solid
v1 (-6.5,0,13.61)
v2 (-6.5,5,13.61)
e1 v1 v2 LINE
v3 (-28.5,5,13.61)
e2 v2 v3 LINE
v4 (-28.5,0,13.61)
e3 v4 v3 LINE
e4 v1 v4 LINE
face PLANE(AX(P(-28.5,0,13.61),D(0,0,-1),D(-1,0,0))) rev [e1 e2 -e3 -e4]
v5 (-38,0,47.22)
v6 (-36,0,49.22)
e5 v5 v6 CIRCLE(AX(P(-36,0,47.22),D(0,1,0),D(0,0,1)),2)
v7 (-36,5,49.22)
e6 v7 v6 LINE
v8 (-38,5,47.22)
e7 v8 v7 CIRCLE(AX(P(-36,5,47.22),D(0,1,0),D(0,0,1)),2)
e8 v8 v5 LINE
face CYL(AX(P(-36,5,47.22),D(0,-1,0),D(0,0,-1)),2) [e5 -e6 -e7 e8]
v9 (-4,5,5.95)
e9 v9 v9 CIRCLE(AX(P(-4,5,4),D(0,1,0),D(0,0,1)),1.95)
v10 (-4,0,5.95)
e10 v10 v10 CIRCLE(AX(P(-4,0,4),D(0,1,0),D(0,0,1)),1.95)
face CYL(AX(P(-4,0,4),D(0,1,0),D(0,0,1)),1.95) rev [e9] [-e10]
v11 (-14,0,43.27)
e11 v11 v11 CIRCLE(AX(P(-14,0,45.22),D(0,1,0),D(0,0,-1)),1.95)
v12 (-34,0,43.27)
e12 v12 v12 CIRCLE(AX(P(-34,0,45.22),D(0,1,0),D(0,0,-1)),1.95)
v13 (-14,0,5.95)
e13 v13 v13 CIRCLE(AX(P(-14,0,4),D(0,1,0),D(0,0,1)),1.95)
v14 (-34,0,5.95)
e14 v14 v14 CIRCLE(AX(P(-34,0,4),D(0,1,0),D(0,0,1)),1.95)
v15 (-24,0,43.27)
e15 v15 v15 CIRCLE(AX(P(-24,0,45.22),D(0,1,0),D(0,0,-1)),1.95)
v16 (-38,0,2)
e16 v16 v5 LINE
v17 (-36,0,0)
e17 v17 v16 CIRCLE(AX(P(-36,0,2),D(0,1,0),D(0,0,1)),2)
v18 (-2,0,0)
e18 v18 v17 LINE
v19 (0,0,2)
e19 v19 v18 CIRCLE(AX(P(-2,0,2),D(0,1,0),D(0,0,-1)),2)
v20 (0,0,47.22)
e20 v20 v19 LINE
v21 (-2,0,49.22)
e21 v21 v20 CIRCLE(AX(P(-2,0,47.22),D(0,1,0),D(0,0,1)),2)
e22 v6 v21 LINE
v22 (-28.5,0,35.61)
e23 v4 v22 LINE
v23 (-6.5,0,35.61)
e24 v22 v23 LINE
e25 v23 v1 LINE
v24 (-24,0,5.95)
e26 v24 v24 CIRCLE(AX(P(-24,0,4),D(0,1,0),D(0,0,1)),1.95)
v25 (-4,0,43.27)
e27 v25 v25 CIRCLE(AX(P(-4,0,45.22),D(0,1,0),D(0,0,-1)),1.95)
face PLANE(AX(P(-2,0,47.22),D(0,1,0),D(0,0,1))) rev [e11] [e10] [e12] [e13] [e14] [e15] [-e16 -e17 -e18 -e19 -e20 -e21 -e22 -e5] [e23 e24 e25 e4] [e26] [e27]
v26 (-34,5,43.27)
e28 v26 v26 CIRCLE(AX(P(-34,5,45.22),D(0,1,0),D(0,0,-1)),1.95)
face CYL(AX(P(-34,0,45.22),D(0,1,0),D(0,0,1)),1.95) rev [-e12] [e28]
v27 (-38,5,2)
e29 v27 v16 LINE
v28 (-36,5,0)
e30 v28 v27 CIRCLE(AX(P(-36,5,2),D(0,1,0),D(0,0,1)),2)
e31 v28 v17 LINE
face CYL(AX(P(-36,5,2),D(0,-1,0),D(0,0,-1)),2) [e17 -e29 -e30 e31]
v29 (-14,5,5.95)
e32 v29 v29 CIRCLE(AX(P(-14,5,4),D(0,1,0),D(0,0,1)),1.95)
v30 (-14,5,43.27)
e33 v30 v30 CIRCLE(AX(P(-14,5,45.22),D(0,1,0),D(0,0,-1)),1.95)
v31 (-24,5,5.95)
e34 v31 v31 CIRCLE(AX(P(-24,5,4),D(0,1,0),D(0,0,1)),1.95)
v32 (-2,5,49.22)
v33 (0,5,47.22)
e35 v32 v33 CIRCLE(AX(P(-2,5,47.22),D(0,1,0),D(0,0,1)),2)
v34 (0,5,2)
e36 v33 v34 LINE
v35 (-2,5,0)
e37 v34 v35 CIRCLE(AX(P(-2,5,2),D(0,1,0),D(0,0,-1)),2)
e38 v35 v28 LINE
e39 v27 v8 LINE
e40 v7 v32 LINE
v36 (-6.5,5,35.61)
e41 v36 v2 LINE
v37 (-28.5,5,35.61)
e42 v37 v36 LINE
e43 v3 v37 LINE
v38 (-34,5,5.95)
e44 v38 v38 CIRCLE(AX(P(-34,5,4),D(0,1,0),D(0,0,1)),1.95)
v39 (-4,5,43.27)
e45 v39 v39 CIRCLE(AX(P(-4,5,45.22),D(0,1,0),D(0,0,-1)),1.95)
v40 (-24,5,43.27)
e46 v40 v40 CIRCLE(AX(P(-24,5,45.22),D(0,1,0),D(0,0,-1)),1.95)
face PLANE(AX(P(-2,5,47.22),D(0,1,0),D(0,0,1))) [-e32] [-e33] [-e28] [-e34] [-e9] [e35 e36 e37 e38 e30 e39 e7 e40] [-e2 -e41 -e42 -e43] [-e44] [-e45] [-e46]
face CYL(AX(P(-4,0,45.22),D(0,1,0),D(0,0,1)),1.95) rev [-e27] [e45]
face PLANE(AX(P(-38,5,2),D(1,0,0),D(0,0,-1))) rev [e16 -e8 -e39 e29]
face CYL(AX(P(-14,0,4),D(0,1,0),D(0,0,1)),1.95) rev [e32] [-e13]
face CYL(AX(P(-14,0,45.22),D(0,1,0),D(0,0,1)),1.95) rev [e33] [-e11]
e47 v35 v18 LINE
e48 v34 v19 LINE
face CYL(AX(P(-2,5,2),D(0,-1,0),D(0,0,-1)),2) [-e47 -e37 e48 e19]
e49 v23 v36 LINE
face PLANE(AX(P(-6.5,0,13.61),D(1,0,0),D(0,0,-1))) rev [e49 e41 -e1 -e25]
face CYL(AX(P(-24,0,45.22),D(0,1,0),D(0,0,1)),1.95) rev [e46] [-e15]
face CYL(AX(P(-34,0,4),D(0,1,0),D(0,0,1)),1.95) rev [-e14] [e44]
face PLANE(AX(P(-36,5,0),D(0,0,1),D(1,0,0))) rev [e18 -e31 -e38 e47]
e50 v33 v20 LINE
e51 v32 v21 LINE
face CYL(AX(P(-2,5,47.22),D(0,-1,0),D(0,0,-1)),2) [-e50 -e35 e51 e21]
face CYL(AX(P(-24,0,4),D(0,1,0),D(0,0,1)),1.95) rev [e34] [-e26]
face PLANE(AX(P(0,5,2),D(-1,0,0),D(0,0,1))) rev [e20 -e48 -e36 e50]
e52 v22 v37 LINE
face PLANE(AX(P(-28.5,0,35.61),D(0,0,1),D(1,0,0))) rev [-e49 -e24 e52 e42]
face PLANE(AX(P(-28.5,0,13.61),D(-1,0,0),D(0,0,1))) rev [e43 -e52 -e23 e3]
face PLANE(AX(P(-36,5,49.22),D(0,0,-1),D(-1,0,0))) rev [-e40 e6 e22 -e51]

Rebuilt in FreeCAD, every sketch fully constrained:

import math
import FreeCAD as App
import Part
import Sketcher
from FreeCAD import Vector

doc = App.newDocument("Part")
body = doc.addObject("PartDesign::Body", "Body")

# Sketch on XZ plane
sketch1 = body.newObject("Sketcher::SketchObject", "Sketch")
sketch1.AttachmentSupport = (doc.getObject("XZ_Plane"), [""])
sketch1.MapMode = "FlatFace"
sketch1.addGeometry([
    Part.LineSegment(Vector(-2, 0, 0), Vector(-36, 0, 0)),  # 0
    Part.ArcOfCircle(Part.Circle(Vector(-36, 2, 0), Vector(0, 0, 1), 2), math.radians(-180), math.radians(-90)),  # 1
    Part.LineSegment(Vector(-38, 2, 0), Vector(-38, 47.2, 0)),  # 2
    Part.ArcOfCircle(Part.Circle(Vector(-36, 47.2, 0), Vector(0, 0, 1), 2), math.radians(90), math.radians(180)),  # 3
    Part.LineSegment(Vector(-36, 49.2, 0), Vector(-2, 49.2, 0)),  # 4
    Part.ArcOfCircle(Part.Circle(Vector(-2, 47.2, 0), Vector(0, 0, 1), 2), math.radians(0), math.radians(90)),  # 5
    Part.LineSegment(Vector(0, 47.2, 0), Vector(0, 2, 0)),  # 6
    Part.ArcOfCircle(Part.Circle(Vector(-2, 2, 0), Vector(0, 0, 1), 2), math.radians(-90), math.radians(0)),  # 7
], False)
sketch1.addConstraint([
    Sketcher.Constraint("Tangent", 0, 2, 1, 2),
    Sketcher.Constraint("Tangent", 1, 1, 2, 1),
    Sketcher.Constraint("Tangent", 2, 2, 3, 2),
    Sketcher.Constraint("Tangent", 3, 1, 4, 1),
    Sketcher.Constraint("Tangent", 4, 2, 5, 2),
    Sketcher.Constraint("Tangent", 5, 1, 6, 1),
    Sketcher.Constraint("Tangent", 6, 2, 7, 2),
    Sketcher.Constraint("Tangent", 7, 1, 0, 1),
    Sketcher.Constraint("Horizontal", 0),
    Sketcher.Constraint("Vertical", 2),
    Sketcher.Constraint("Horizontal", 4),
    Sketcher.Constraint("Vertical", 6),
    Sketcher.Constraint("Equal", 1, 3),
    Sketcher.Constraint("Equal", 3, 5),
    Sketcher.Constraint("Equal", 5, 7),
    Sketcher.Constraint("PointOnObject", 0, 2, -1),
    Sketcher.Constraint("PointOnObject", 5, 1, -2),
    Sketcher.Constraint("Radius", 1, 2.0),
    Sketcher.Constraint("DistanceX", 0, 2, 0, 1, 34.0),
    Sketcher.Constraint("DistanceY", 2, 1, 2, 2, 45.22),
])
pad1 = body.newObject("PartDesign::Pad", "Pad")
pad1.Profile = sketch1
pad1.Length = 5
pad1.Reversed = True

# Sketch on XZ plane
sketch2 = body.newObject("Sketcher::SketchObject", "Sketch001")
sketch2.AttachmentSupport = (doc.getObject("XZ_Plane"), [""])
sketch2.MapMode = "FlatFace"
sketch2.AttachmentOffset = App.Placement(Vector(0, 0, -5), App.Rotation())
sketch2.addGeometry([
    Part.Circle(Vector(-4, 4, 0), Vector(0, 0, 1), 1.9),  # 0
    Part.Circle(Vector(-14, 4, 0), Vector(0, 0, 1), 1.9),  # 1
    Part.Circle(Vector(-24, 4, 0), Vector(0, 0, 1), 1.9),  # 2
    Part.Circle(Vector(-54, 4, 0), Vector(0, 0, 1), 1.9),  # 3
    Part.Circle(Vector(-34, 4, 0), Vector(0, 0, 1), 1.9),  # 4
    Part.Circle(Vector(-44, 4, 0), Vector(0, 0, 1), 1.9),  # 5
    Part.Circle(Vector(-44, 45.2, 0), Vector(0, 0, 1), 1.9),  # 6
    Part.Circle(Vector(-34, 45.2, 0), Vector(0, 0, 1), 1.9),  # 7
    Part.Circle(Vector(-54, 45.2, 0), Vector(0, 0, 1), 1.9),  # 8
    Part.Circle(Vector(-24, 45.2, 0), Vector(0, 0, 1), 1.9),  # 9
    Part.Circle(Vector(-14, 45.2, 0), Vector(0, 0, 1), 1.9),  # 10
    Part.Circle(Vector(-4, 45.2, 0), Vector(0, 0, 1), 1.9),  # 11
    Part.LineSegment(Vector(-28.5, 13.6, 0), Vector(-28.5, 35.6, 0)),  # 12
    Part.LineSegment(Vector(-28.5, 35.6, 0), Vector(-6.5, 35.6, 0)),  # 13
    Part.LineSegment(Vector(-6.5, 35.6, 0), Vector(-6.5, 13.6, 0)),  # 14
    Part.LineSegment(Vector(-6.5, 13.6, 0), Vector(-28.5, 13.6, 0)),  # 15
], False)
sketch2.addConstraint([
    Sketcher.Constraint("Coincident", 12, 2, 13, 1),
    Sketcher.Constraint("Coincident", 13, 2, 14, 1),
    Sketcher.Constraint("Coincident", 14, 2, 15, 1),
    Sketcher.Constraint("Coincident", 15, 2, 12, 1),
    Sketcher.Constraint("Vertical", 12),
    Sketcher.Constraint("Horizontal", 13),
    Sketcher.Constraint("Vertical", 14),
    Sketcher.Constraint("Horizontal", 15),
    Sketcher.Constraint("Equal", 0, 1),
    Sketcher.Constraint("Equal", 1, 2),
    Sketcher.Constraint("Equal", 2, 3),
    Sketcher.Constraint("Equal", 3, 4),
    Sketcher.Constraint("Equal", 4, 5),
    Sketcher.Constraint("Equal", 5, 6),
    Sketcher.Constraint("Equal", 6, 7),
    Sketcher.Constraint("Equal", 7, 8),
    Sketcher.Constraint("Equal", 8, 9),
    Sketcher.Constraint("Equal", 9, 10),
    Sketcher.Constraint("Equal", 10, 11),
    Sketcher.Constraint("Horizontal", 0, 3, 1, 3),
    Sketcher.Constraint("Horizontal", 1, 3, 2, 3),
    Sketcher.Constraint("Horizontal", 2, 3, 3, 3),
    Sketcher.Constraint("Horizontal", 3, 3, 4, 3),
    Sketcher.Constraint("Horizontal", 4, 3, 5, 3),
    Sketcher.Constraint("Horizontal", 6, 3, 7, 3),
    Sketcher.Constraint("Horizontal", 7, 3, 8, 3),
    Sketcher.Constraint("Horizontal", 8, 3, 9, 3),
    Sketcher.Constraint("Horizontal", 9, 3, 10, 3),
    Sketcher.Constraint("Horizontal", 10, 3, 11, 3),
    Sketcher.Constraint("Vertical", 5, 3, 6, 3),
    Sketcher.Constraint("Vertical", 4, 3, 7, 3),
    Sketcher.Constraint("Vertical", 3, 3, 8, 3),
    Sketcher.Constraint("Vertical", 2, 3, 9, 3),
    Sketcher.Constraint("Vertical", 1, 3, 10, 3),
    Sketcher.Constraint("Vertical", 0, 3, 11, 3),
    Sketcher.Constraint("Equal", 15, 12),
    Sketcher.Constraint("Diameter", 0, 3.9),
    Sketcher.Constraint("DistanceX", 13, 1, 13, 2, 22.0),
    Sketcher.Constraint("DistanceX", 0, 3, -1, 1, 4.0),
    Sketcher.Constraint("DistanceY", -1, 1, 0, 3, 4.0),
    Sketcher.Constraint("DistanceX", 1, 3, -1, 1, 14.0),
    Sketcher.Constraint("DistanceX", 2, 3, -1, 1, 24.0),
    Sketcher.Constraint("DistanceX", 3, 3, -1, 1, 54.0),
    Sketcher.Constraint("DistanceX", 4, 3, -1, 1, 34.0),
    Sketcher.Constraint("DistanceX", 5, 3, -1, 1, 44.0),
    Sketcher.Constraint("DistanceX", 12, 2, -1, 1, 28.5),
    Sketcher.Constraint("DistanceY", -1, 1, 6, 3, 45.22),
    Sketcher.Constraint("DistanceY", -1, 1, 12, 2, 35.61),
])
pocket1 = body.newObject("PartDesign::Pocket", "Pocket")
pocket1.Profile = sketch2
pocket1.Type = "ThroughAll"
pocket1.Reversed = True

doc.recompute()
